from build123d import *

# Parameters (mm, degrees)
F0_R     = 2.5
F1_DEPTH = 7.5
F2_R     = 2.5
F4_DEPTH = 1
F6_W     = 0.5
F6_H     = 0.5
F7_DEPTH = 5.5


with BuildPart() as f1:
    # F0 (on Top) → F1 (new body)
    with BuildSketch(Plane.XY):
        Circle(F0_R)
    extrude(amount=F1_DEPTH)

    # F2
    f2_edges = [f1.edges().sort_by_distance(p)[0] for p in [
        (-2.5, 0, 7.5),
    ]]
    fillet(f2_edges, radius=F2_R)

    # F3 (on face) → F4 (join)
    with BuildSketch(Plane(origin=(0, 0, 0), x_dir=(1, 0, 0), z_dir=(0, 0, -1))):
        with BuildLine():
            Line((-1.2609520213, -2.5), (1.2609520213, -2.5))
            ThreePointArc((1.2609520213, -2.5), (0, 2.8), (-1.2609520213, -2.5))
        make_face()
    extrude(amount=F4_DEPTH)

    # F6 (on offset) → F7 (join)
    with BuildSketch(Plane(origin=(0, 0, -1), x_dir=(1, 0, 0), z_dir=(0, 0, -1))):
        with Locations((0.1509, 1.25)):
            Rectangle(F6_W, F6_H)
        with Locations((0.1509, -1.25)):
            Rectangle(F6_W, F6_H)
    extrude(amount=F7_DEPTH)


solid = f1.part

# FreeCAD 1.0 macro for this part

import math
import FreeCAD as App
import Part
import Sketcher
from FreeCAD import Vector
Q = App.Units.Quantity


def edges_at(feature, points):
    """Names of the edges that pass closest to the given points."""
    edges = feature.Shape.Edges
    near = lambda p: min(range(len(edges)), key=lambda i: edges[i].distToShape(Part.Vertex(*p))[0])
    return sorted({f"Edge{near(p) + 1}" for p in points})

doc = App.newDocument("Part")
body = doc.addObject("PartDesign::Body", "Body")

sketch1 = doc.addObject("Sketcher::SketchObject", "Sketch")
body.addObject(sketch1)
sketch1.AttachmentSupport = (doc.XY_Plane, [""])
sketch1.MapMode = "FlatFace"
sketch1.addGeometry(Part.Circle(Vector(0, 0, 0), Vector(0, 0, 1), 2.5), False)
sketch1.addConstraint([
    Sketcher.Constraint("Coincident", 0, 3, -1, 1),
    Sketcher.Constraint("Diameter", 0, Q("5 mm")),
])
pad1 = doc.addObject("PartDesign::Pad", "Pad")
body.addObject(pad1)
pad1.Profile = sketch1
pad1.Length = 7.5
doc.recompute()

fillet = doc.addObject("PartDesign::Fillet", "Fillet")
body.addObject(fillet)
fillet.Base = (pad1, edges_at(pad1, [(-2.5, 0, 7.5)]))
fillet.Radius = 2.5

sketch2 = doc.addObject("Sketcher::SketchObject", "Sketch001")
body.addObject(sketch2)
sketch2.AttachmentSupport = (doc.XY_Plane, [""])
sketch2.MapMode = "FlatFace"
sketch2.addGeometry([
    Part.LineSegment(Vector(-1.3, 2.5, 0), Vector(1.3, 2.5, 0)),
    Part.ArcOfCircle(Part.Circle(Vector(0, 0, 0), Vector(0, 0, 1), 2.8), math.radians(117), math.radians(423)),
], False)
sketch2.addConstraint([
    Sketcher.Constraint("Coincident", 0, 1, 1, 1),
    Sketcher.Constraint("Coincident", 1, 2, 0, 2),
    Sketcher.Constraint("Horizontal", 0),
    Sketcher.Constraint("Coincident", 1, 3, -1, 1),
    Sketcher.Constraint("Radius", 1, Q("2.8 mm")),
    Sketcher.Constraint("DistanceY", -1, 1, 0, 1, Q("2.5 mm")),
])
pad2 = doc.addObject("PartDesign::Pad", "Pad001")
body.addObject(pad2)
pad2.Profile = sketch2
pad2.Length = 1
pad2.Reversed = True

sketch3 = doc.addObject("Sketcher::SketchObject", "Sketch002")
body.addObject(sketch3)
sketch3.AttachmentSupport = (doc.XY_Plane, [""])
sketch3.MapMode = "FlatFace"
sketch3.AttachmentOffset = App.Placement(Vector(0, 0, -1), App.Rotation())
sketch3.addGeometry([
    Part.LineSegment(Vector(-0.1, -1.5, 0), Vector(-0.1, -1, 0)),
    Part.LineSegment(Vector(-0.1, -1, 0), Vector(0.4, -1, 0)),
    Part.LineSegment(Vector(0.4, -1, 0), Vector(0.4, -1.5, 0)),
    Part.LineSegment(Vector(0.4, -1.5, 0), Vector(-0.1, -1.5, 0)),
    Part.LineSegment(Vector(-0.1, 1, 0), Vector(-0.1, 1.5, 0)),
    Part.LineSegment(Vector(-0.1, 1.5, 0), Vector(0.4, 1.5, 0)),
    Part.LineSegment(Vector(0.4, 1.5, 0), Vector(0.4, 1, 0)),
    Part.LineSegment(Vector(0.4, 1, 0), Vector(-0.1, 1, 0)),
], False)
sketch3.addConstraint([
    Sketcher.Constraint("Coincident", 0, 2, 1, 1),
    Sketcher.Constraint("Coincident", 1, 2, 2, 1),
    Sketcher.Constraint("Coincident", 2, 2, 3, 1),
    Sketcher.Constraint("Coincident", 3, 2, 0, 1),
    Sketcher.Constraint("Coincident", 4, 2, 5, 1),
    Sketcher.Constraint("Coincident", 5, 2, 6, 1),
    Sketcher.Constraint("Coincident", 6, 2, 7, 1),
    Sketcher.Constraint("Coincident", 7, 2, 4, 1),
    Sketcher.Constraint("Vertical", 0),
    Sketcher.Constraint("Horizontal", 1),
    Sketcher.Constraint("Vertical", 2),
    Sketcher.Constraint("Horizontal", 3),
    Sketcher.Constraint("Vertical", 4),
    Sketcher.Constraint("Horizontal", 5),
    Sketcher.Constraint("Vertical", 6),
    Sketcher.Constraint("Horizontal", 7),
    Sketcher.Constraint("Symmetric", 3, 2, 4, 2, -1),
    Sketcher.Constraint("Symmetric", 1, 2, 6, 2, -1),
    Sketcher.Constraint("Equal", 7, 0),
    Sketcher.Constraint("DistanceX", 1, 1, 1, 2, Q("0.5 mm")),
    Sketcher.Constraint("DistanceY", 0, 2, -1, 1, Q("1 mm")),
    Sketcher.Constraint("DistanceX", 0, 2, -1, 1, Q("0.0991 mm")),
])
pad3 = doc.addObject("PartDesign::Pad", "Pad002")
body.addObject(pad3)
pad3.Profile = sketch3
pad3.Length = 5.5
pad3.Reversed = True

doc.recompute()
